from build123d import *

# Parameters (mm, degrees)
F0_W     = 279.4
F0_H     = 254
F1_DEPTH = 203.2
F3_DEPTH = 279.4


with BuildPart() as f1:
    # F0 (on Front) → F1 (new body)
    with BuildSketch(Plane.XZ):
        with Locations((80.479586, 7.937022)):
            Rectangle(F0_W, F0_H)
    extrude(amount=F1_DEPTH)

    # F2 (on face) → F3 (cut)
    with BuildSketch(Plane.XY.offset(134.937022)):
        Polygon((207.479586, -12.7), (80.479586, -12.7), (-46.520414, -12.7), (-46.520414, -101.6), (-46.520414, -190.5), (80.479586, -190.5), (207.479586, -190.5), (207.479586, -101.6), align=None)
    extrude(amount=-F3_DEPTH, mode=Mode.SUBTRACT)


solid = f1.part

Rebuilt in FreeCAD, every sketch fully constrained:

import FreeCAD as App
import Part
import Sketcher
Q = App.Units.Quantity


def add_polygon(sketch, points):
    """Adds a closed chain of lines whose ends are joined by coincident constraints."""
    first, n = sketch.GeometryCount, len(points)
    for a, b in zip(points, points[1:] + points[:1]):
        sketch.addGeometry(Part.LineSegment(App.Vector(*a, 0), App.Vector(*b, 0)), False)
    for i in range(n):
        sketch.addConstraint(Sketcher.Constraint("Coincident", first + i, 2, first + (i + 1) % n, 1))

doc = App.newDocument("Part")
body = doc.addObject("PartDesign::Body", "Body")

sketch1 = body.newObject("Sketcher::SketchObject", "Sketch")
sketch1.AttachmentSupport = (doc.getObject("XZ_Plane"), [""])
sketch1.MapMode = "FlatFace"
add_polygon(sketch1, [(-59, 135), (-59, -119), (220, -119), (220, 135)])
sketch1.addConstraint([
    Sketcher.Constraint("Vertical", 0),
    Sketcher.Constraint("Horizontal", 1),
    Sketcher.Constraint("Vertical", 2),
    Sketcher.Constraint("Horizontal", 3),
    Sketcher.Constraint("DistanceX", 1, 1, 1, 2, Q("11 in")),
    Sketcher.Constraint("DistanceY", 0, 2, 0, 1, Q("10 in")),
    Sketcher.Constraint("DistanceY", 0, 2, -1, 1, Q("119.062978 mm")),
    Sketcher.Constraint("DistanceX", 0, 2, -1, 1, Q("59.220414 mm")),
])
pad1 = body.newObject("PartDesign::Pad", "Pad")
pad1.Profile = sketch1
pad1.Length = Q("8 in")

sketch2 = body.newObject("Sketcher::SketchObject", "Sketch001")
sketch2.AttachmentSupport = (doc.getObject("XY_Plane"), [""])
sketch2.MapMode = "FlatFace"
sketch2.AttachmentOffset = App.Placement(App.Vector(0, 0, 134.937022), App.Rotation())
add_polygon(sketch2, [(207, -13), (-47, -13), (-47, -190), (207, -190)])
sketch2.addConstraint([
    Sketcher.Constraint("Horizontal", 0),
    Sketcher.Constraint("Vertical", 1),
    Sketcher.Constraint("Horizontal", 2),
    Sketcher.Constraint("Vertical", 3),
    Sketcher.Constraint("DistanceX", 0, 2, 0, 1, Q("10 in")),
    Sketcher.Constraint("DistanceY", 1, 2, 1, 1, Q("7 in")),
    Sketcher.Constraint("DistanceY", 0, 2, -1, 1, Q("0.5 in")),
    Sketcher.Constraint("DistanceX", 0, 2, -1, 1, Q("46.520414 mm")),
])
pocket1 = body.newObject("PartDesign::Pocket", "Pocket")
pocket1.Profile = sketch2
pocket1.Length = Q("11 in")

doc.recompute()
